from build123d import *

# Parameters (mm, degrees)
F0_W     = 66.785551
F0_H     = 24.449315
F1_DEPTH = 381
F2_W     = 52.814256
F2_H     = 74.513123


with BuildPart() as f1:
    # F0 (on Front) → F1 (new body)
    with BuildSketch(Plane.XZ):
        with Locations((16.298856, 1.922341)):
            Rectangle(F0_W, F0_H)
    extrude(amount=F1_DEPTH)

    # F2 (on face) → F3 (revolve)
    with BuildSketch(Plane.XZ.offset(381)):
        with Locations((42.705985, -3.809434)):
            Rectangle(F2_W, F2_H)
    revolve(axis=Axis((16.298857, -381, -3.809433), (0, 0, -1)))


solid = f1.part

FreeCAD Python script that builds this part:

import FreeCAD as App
import Part
import Sketcher
from FreeCAD import Vector


def add_polygon(sketch, points):
    """Adds a closed chain of lines whose ends are joined by coincident constraints."""
    first, n = sketch.GeometryCount, len(points)
    for a, b in zip(points, points[1:] + points[:1]):
        sketch.addGeometry(Part.LineSegment(App.Vector(*a, 0), App.Vector(*b, 0)), False)
    for i in range(n):
        sketch.addConstraint(Sketcher.Constraint("Coincident", first + i, 2, first + (i + 1) % n, 1))

doc = App.newDocument("Part")
params = doc.addObject("Spreadsheet::Sheet", "Params")
for row, (alias, value) in enumerate([
    ("pad1_length", "15 in"),
    ("revolution_angle", "360 deg"),
], start=1):
    params.set(f"A{row}", alias)
    params.set(f"B{row}", "=" + value)
    params.setAlias(f"B{row}", alias)

body = doc.addObject("PartDesign::Body", "Body")

# Sketch on XZ plane
sketch1 = body.newObject("Sketcher::SketchObject", "Sketch")
sketch1.AttachmentSupport = (doc.getObject("XZ_Plane"), [""])
sketch1.MapMode = "FlatFace"
add_polygon(sketch1, [(-17, 14), (-17, -10), (50, -10), (50, 14)])  # lines 0-3
sketch1.addConstraint(Sketcher.Constraint("Vertical", 0))
sketch1.addConstraint(Sketcher.Constraint("Horizontal", 1))
sketch1.addConstraint(Sketcher.Constraint("Vertical", 2))
sketch1.addConstraint(Sketcher.Constraint("Horizontal", 3))
sketch1.addConstraint(Sketcher.Constraint("DistanceX", 1, 1, 1, 2, 66.785551))
sketch1.addConstraint(Sketcher.Constraint("DistanceY", -1, 1, 2, 2, 14.146999))
sketch1.addConstraint(Sketcher.Constraint("DistanceY", 0, 2, 0, 1, 24.449315))
sketch1.addConstraint(Sketcher.Constraint("DistanceX", 0, 2, -1, 1, 17.093919))
pad1 = body.newObject("PartDesign::Pad", "Pad")
pad1.Profile = sketch1
pad1.setExpression("Length", "Params.pad1_length")

# Sketch on XZ plane
sketch2 = body.newObject("Sketcher::SketchObject", "Sketch001")
sketch2.AttachmentSupport = (doc.getObject("XZ_Plane"), [""])
sketch2.MapMode = "FlatFace"
sketch2.AttachmentOffset = App.Placement(Vector(0, 0, 15 * 25.4), App.Rotation())
add_polygon(sketch2, [(16, 33), (16, -41), (69, -41), (69, 33)])  # lines 0-3
sketch2.addGeometry(Part.LineSegment(Vector(16, 33, 0), Vector(16, -41, 0)), True)  # axis
sketch2.addConstraint(Sketcher.Constraint("Vertical", 0))
sketch2.addConstraint(Sketcher.Constraint("Horizontal", 1))
sketch2.addConstraint(Sketcher.Constraint("Vertical", 2))
sketch2.addConstraint(Sketcher.Constraint("Horizontal", 3))
sketch2.addConstraint(Sketcher.Constraint("Vertical", 4))
sketch2.addConstraint(Sketcher.Constraint("Coincident", 4, 1, 3, 2))
sketch2.addConstraint(Sketcher.Constraint("Horizontal", 1, 2, 4, 2))
sketch2.addConstraint(Sketcher.Constraint("DistanceX", 1, 1, 1, 2, 52.814256))
sketch2.addConstraint(Sketcher.Constraint("DistanceY", 0, 2, 0, 1, 74.513123))
sketch2.addConstraint(Sketcher.Constraint("DistanceX", -1, 1, 0, 2, 16.298857))
sketch2.addConstraint(Sketcher.Constraint("DistanceY", 0, 2, -1, 1, 41.065995))
revolution = body.newObject("PartDesign::Revolution", "Revolution")
revolution.Profile = sketch2
revolution.ReferenceAxis = (sketch2, ["Axis0"])
revolution.setExpression("Angle", "Params.revolution_angle")

doc.recompute()
